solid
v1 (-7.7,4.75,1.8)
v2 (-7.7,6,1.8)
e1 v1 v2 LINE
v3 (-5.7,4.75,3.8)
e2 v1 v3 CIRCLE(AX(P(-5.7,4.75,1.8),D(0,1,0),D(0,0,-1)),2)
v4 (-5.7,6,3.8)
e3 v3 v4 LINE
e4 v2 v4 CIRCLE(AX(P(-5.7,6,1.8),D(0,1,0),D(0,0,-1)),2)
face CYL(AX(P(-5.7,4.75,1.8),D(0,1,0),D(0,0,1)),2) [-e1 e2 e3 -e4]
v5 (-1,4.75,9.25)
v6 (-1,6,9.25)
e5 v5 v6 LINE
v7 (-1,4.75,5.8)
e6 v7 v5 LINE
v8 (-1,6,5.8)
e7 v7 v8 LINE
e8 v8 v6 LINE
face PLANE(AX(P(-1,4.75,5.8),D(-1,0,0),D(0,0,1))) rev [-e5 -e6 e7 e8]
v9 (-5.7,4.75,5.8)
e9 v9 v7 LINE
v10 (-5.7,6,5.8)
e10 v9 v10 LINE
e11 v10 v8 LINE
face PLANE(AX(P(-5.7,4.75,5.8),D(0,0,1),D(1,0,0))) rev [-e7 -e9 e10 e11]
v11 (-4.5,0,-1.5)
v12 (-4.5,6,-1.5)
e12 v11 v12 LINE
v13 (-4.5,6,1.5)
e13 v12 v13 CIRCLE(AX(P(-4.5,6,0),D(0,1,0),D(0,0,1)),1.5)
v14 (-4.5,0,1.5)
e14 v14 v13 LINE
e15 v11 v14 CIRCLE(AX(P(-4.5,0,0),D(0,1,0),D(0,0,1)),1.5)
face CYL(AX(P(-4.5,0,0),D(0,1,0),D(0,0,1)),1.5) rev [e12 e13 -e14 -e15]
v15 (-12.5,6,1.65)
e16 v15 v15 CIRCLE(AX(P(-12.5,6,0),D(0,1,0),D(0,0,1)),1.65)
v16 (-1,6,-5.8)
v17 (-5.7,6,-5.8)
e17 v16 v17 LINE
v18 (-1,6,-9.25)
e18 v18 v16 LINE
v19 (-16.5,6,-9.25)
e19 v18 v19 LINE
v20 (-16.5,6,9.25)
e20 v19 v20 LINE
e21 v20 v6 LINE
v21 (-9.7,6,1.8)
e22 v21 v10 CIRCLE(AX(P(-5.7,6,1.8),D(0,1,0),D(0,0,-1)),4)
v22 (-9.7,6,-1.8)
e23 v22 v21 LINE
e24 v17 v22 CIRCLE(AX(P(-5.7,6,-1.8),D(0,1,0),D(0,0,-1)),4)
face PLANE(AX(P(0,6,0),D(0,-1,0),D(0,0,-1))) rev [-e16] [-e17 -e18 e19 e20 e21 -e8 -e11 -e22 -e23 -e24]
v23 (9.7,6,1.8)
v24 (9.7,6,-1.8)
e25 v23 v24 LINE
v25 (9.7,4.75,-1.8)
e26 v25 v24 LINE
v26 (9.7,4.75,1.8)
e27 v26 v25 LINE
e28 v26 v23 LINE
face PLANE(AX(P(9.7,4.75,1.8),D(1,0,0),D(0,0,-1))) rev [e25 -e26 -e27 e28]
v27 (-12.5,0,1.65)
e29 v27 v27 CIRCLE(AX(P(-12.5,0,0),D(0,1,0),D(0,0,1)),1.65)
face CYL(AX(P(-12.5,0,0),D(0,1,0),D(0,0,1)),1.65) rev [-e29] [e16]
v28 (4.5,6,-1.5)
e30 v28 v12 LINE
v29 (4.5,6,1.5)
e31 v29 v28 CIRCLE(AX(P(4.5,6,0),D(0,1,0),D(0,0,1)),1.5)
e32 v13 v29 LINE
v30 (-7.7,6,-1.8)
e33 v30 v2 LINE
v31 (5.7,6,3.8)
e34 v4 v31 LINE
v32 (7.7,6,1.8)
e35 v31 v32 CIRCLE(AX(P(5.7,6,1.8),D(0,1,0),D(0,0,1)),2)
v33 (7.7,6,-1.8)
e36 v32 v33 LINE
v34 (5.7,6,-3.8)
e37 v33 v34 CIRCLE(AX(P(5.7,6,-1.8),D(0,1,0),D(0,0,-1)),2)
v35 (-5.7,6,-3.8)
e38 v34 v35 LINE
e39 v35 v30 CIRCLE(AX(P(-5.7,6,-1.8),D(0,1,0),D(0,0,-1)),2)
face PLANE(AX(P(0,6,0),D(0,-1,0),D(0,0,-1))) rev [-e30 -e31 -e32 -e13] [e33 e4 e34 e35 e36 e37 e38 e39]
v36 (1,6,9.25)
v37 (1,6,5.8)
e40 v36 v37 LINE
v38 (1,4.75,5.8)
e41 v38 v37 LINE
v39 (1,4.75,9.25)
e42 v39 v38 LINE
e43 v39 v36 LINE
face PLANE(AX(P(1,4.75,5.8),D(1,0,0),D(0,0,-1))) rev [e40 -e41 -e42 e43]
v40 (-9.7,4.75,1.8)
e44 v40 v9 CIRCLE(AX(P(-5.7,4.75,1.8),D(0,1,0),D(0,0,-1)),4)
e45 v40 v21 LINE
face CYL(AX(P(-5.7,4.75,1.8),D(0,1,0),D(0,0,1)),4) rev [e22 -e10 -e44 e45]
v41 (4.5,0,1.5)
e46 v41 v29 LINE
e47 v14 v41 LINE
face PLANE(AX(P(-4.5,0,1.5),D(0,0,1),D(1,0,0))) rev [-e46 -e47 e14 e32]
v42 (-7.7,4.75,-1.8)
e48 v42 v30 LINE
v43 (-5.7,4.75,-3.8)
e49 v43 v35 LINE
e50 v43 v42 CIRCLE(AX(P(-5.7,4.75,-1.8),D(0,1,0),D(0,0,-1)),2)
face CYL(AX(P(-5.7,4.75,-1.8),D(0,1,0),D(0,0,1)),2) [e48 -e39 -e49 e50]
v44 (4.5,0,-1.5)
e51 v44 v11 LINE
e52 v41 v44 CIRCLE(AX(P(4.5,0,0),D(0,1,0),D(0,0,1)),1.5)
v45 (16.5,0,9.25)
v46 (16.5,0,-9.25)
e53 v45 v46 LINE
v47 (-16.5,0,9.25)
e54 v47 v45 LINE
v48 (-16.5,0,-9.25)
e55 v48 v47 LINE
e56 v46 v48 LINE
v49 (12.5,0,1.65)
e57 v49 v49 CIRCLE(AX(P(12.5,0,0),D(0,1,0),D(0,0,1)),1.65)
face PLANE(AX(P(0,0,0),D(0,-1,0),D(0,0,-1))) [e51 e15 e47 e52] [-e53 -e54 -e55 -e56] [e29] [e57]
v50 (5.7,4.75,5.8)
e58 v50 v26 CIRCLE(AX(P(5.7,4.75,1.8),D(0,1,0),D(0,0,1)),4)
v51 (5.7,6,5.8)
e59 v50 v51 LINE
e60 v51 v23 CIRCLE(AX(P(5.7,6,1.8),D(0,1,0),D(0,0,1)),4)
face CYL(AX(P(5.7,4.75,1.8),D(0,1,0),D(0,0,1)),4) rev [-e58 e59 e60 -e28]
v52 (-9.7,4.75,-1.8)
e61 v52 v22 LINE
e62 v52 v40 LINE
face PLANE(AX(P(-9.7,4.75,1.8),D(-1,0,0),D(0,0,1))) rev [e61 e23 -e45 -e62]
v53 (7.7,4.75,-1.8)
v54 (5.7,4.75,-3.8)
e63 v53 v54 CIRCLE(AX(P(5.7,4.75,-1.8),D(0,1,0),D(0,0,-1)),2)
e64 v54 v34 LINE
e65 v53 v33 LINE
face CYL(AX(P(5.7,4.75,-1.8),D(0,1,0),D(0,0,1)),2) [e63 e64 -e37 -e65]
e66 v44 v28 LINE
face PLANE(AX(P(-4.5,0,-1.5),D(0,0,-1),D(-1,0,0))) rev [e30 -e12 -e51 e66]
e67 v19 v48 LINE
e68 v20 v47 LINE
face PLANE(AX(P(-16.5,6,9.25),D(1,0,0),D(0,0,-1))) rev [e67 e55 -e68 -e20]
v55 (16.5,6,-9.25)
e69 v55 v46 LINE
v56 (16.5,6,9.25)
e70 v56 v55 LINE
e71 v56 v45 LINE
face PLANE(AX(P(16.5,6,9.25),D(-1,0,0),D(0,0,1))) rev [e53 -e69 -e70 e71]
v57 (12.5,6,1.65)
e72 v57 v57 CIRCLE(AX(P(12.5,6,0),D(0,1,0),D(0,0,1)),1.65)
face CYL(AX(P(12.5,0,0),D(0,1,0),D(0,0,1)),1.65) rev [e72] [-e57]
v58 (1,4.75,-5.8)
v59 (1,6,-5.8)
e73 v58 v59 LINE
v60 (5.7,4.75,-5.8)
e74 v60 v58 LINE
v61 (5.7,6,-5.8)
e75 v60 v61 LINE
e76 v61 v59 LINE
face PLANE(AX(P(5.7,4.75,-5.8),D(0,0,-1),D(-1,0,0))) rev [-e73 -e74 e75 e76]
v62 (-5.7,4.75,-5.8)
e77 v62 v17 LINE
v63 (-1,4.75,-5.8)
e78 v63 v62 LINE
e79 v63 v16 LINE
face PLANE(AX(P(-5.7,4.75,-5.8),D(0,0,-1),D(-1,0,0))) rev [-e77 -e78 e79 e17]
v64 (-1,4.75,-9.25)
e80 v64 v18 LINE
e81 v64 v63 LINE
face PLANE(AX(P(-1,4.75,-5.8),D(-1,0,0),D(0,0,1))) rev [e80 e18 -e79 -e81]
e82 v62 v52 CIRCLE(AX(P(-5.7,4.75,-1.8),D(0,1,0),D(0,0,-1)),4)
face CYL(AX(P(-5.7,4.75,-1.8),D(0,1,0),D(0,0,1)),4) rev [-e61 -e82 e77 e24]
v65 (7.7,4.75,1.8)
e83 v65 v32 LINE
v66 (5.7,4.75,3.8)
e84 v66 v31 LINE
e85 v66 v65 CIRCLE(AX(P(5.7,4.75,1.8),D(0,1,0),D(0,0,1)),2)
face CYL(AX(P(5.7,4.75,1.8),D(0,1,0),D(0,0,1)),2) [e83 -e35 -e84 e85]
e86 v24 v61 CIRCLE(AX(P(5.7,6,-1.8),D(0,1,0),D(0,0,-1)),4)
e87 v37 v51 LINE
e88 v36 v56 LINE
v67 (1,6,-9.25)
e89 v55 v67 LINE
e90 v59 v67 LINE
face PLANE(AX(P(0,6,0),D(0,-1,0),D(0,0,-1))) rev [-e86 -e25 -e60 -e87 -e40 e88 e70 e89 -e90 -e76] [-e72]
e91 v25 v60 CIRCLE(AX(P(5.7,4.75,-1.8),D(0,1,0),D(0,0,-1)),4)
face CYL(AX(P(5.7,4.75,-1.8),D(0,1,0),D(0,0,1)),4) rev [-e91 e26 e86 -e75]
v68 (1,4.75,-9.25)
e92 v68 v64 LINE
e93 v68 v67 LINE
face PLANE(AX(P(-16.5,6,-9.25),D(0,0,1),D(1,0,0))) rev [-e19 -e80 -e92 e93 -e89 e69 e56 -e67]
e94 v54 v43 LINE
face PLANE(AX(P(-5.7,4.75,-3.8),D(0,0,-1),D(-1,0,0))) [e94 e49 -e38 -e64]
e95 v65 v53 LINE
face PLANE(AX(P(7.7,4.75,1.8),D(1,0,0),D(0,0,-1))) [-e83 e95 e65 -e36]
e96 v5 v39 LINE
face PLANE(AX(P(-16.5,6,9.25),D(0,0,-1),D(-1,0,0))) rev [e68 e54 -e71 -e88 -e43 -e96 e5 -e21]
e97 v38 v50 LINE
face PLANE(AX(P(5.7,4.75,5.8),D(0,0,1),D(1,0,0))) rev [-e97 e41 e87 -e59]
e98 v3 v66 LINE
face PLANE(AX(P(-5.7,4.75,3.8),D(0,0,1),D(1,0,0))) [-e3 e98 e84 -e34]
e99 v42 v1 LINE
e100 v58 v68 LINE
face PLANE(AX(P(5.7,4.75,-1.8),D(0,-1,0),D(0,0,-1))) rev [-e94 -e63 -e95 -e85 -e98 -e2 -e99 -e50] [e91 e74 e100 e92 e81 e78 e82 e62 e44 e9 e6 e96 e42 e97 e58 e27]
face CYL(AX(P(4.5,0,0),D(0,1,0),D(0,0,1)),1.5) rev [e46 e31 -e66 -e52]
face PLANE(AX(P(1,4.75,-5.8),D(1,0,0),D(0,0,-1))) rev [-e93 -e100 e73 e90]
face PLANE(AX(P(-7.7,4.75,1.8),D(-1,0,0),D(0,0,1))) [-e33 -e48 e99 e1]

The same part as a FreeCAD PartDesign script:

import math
import FreeCAD as App
import Part
import Sketcher

V = App.Vector

doc = App.newDocument("Part")
body = doc.addObject("PartDesign::Body", "Body")

# Sketch on XZ plane
sketch1 = body.newObject("Sketcher::SketchObject", "Sketch")
sketch1.AttachmentSupport = (doc.getObject("XZ_Plane"), [""])
sketch1.MapMode = "FlatFace"
sketch1.addGeometry([
    Part.LineSegment(V(-16, -9, 0), V(-16, 9, 0)),
    Part.LineSegment(V(-16, 9, 0), V(16, 9, 0)),
    Part.LineSegment(V(16, 9, 0), V(16, -9, 0)),
    Part.LineSegment(V(16, -9, 0), V(-16, -9, 0)),
], False)
sketch1.addConstraint([
    Sketcher.Constraint("Coincident", 0, 2, 1, 1),
    Sketcher.Constraint("Coincident", 1, 2, 2, 1),
    Sketcher.Constraint("Coincident", 2, 2, 3, 1),
    Sketcher.Constraint("Coincident", 3, 2, 0, 1),
    Sketcher.Constraint("Vertical", 0),
    Sketcher.Constraint("Horizontal", 1),
    Sketcher.Constraint("Vertical", 2),
    Sketcher.Constraint("Horizontal", 3),
    Sketcher.Constraint("Symmetric", 0, 2, 2, 2, -1, 1),
    Sketcher.Constraint("DistanceX", 1, 1, 1, 2, 33.0),
    Sketcher.Constraint("DistanceY", 0, 1, 0, 2, 18.5),
])
pad1 = body.newObject("PartDesign::Pad", "Pad")
pad1.Profile = sketch1
pad1.Length = 6
pad1.Reversed = True

# Sketch on XZ plane
sketch2 = body.newObject("Sketcher::SketchObject", "Sketch001")
sketch2.AttachmentSupport = (doc.getObject("XZ_Plane"), [""])
sketch2.MapMode = "FlatFace"
sketch2.AttachmentOffset = App.Placement(V(0, 0, -6), App.Rotation())
sketch2.addGeometry([
    Part.LineSegment(V(1, -9.2, 0), V(-1, -9.2, 0)),  # 0
    Part.LineSegment(V(-1, -9.2, 0), V(-1, -5.8, 0)),  # 1
    Part.LineSegment(V(-1, -5.8, 0), V(-5.7, -5.8, 0)),  # 2
    Part.ArcOfCircle(Part.Circle(V(-5.7, -1.8, 0), V(0, 0, 1), 4), math.radians(180), math.radians(270)),  # 3
    Part.LineSegment(V(-9.7, -1.8, 0), V(-9.7, 1.8, 0)),  # 4
    Part.ArcOfCircle(Part.Circle(V(-5.7, 1.8, 0), V(0, 0, 1), 4), math.radians(90), math.radians(180)),  # 5
    Part.LineSegment(V(-5.7, 5.8, 0), V(-1, 5.8, 0)),  # 6
    Part.LineSegment(V(-1, 5.8, 0), V(-1, 9.2, 0)),  # 7
    Part.LineSegment(V(-1, 9.2, 0), V(1, 9.2, 0)),  # 8
    Part.LineSegment(V(1, 9.2, 0), V(1, 5.8, 0)),  # 9
    Part.LineSegment(V(1, 5.8, 0), V(5.7, 5.8, 0)),  # 10
    Part.ArcOfCircle(Part.Circle(V(5.7, 1.8, 0), V(0, 0, 1), 4), math.radians(0), math.radians(90)),  # 11
    Part.LineSegment(V(9.7, 1.8, 0), V(9.7, -1.8, 0)),  # 12
    Part.ArcOfCircle(Part.Circle(V(5.7, -1.8, 0), V(0, 0, 1), 4), math.radians(-90), math.radians(0)),  # 13
    Part.LineSegment(V(5.7, -5.8, 0), V(1, -5.8, 0)),  # 14
    Part.LineSegment(V(1, -5.8, 0), V(1, -9.2, 0)),  # 15
    Part.ArcOfCircle(Part.Circle(V(-5.7, 1.8, 0), V(0, 0, 1), 2), math.radians(90), math.radians(180)),  # 16
    Part.LineSegment(V(-7.7, 1.8, 0), V(-7.7, -1.8, 0)),  # 17
    Part.ArcOfCircle(Part.Circle(V(-5.7, -1.8, 0), V(0, 0, 1), 2), math.radians(-180), math.radians(-90)),  # 18
    Part.LineSegment(V(-5.7, -3.8, 0), V(5.7, -3.8, 0)),  # 19
    Part.ArcOfCircle(Part.Circle(V(5.7, -1.8, 0), V(0, 0, 1), 2), math.radians(-90), math.radians(0)),  # 20
    Part.LineSegment(V(7.7, -1.8, 0), V(7.7, 1.8, 0)),  # 21
    Part.ArcOfCircle(Part.Circle(V(5.7, 1.8, 0), V(0, 0, 1), 2), math.radians(0), math.radians(90)),  # 22
    Part.LineSegment(V(5.7, 3.8, 0), V(-5.7, 3.8, 0)),  # 23
], False)
sketch2.addConstraint([
    Sketcher.Constraint("Coincident", 0, 2, 1, 1),
    Sketcher.Constraint("Coincident", 1, 2, 2, 1),
    Sketcher.Constraint("Tangent", 2, 2, 3, 2),
    Sketcher.Constraint("Tangent", 3, 1, 4, 1),
    Sketcher.Constraint("Tangent", 4, 2, 5, 2),
    Sketcher.Constraint("Tangent", 5, 1, 6, 1),
    Sketcher.Constraint("Coincident", 6, 2, 7, 1),
    Sketcher.Constraint("Coincident", 7, 2, 8, 1),
    Sketcher.Constraint("Coincident", 8, 2, 9, 1),
    Sketcher.Constraint("Coincident", 9, 2, 10, 1),
    Sketcher.Constraint("Tangent", 10, 2, 11, 2),
    Sketcher.Constraint("Tangent", 11, 1, 12, 1),
    Sketcher.Constraint("Tangent", 12, 2, 13, 2),
    Sketcher.Constraint("Tangent", 13, 1, 14, 1),
    Sketcher.Constraint("Coincident", 14, 2, 15, 1),
    Sketcher.Constraint("Coincident", 15, 2, 0, 1),
    Sketcher.Constraint("Tangent", 16, 2, 17, 1),
    Sketcher.Constraint("Tangent", 17, 2, 18, 1),
    Sketcher.Constraint("Tangent", 18, 2, 19, 1),
    Sketcher.Constraint("Tangent", 19, 2, 20, 1),
    Sketcher.Constraint("Tangent", 20, 2, 21, 1),
    Sketcher.Constraint("Tangent", 21, 2, 22, 1),
    Sketcher.Constraint("Tangent", 22, 2, 23, 1),
    Sketcher.Constraint("Tangent", 23, 2, 16, 1),
    Sketcher.Constraint("Horizontal", 0),
    Sketcher.Constraint("Vertical", 1),
    Sketcher.Constraint("Horizontal", 2),
    Sketcher.Constraint("Vertical", 4),
    Sketcher.Constraint("Horizontal", 6),
    Sketcher.Constraint("Vertical", 7),
    Sketcher.Constraint("Horizontal", 8),
    Sketcher.Constraint("Vertical", 9),
    Sketcher.Constraint("Horizontal", 10),
    Sketcher.Constraint("Vertical", 12),
    Sketcher.Constraint("Horizontal", 14),
    Sketcher.Constraint("Vertical", 15),
    Sketcher.Constraint("Vertical", 17),
    Sketcher.Constraint("Horizontal", 19),
    Sketcher.Constraint("Vertical", 21),
    Sketcher.Constraint("Horizontal", 23),
    Sketcher.Constraint("Coincident", 16, 3, 5, 3),
    Sketcher.Constraint("Coincident", 18, 3, 3, 3),
    Sketcher.Constraint("Coincident", 20, 3, 13, 3),
    Sketcher.Constraint("Coincident", 22, 3, 11, 3),
    Sketcher.Constraint("Equal", 3, 5),
    Sketcher.Constraint("Equal", 5, 11),
    Sketcher.Constraint("Equal", 11, 13),
    Sketcher.Constraint("Equal", 18, 20),
    Sketcher.Constraint("Symmetric", 3, 3, 11, 3, -1, 1),
    Sketcher.Constraint("Symmetric", 0, 2, 8, 2, -1, 1),
    Sketcher.Constraint("Vertical", 1, 2, 6, 2),
    Sketcher.Constraint("Vertical", 9, 2, 14, 2),
    Sketcher.Constraint("Radius", 3, 4.0),
    Sketcher.Constraint("Radius", 16, 2.0),
    Sketcher.Constraint("DistanceX", 0, 2, 0, 1, 2.0),
    Sketcher.Constraint("DistanceX", 2, 2, 2, 1, 4.7),
    Sketcher.Constraint("DistanceY", 4, 1, 4, 2, 3.6),
    Sketcher.Constraint("DistanceY", 1, 1, 1, 2, 3.45),
])
pocket1 = body.newObject("PartDesign::Pocket", "Pocket")
pocket1.Profile = sketch2
pocket1.Length = 1.25
pocket1.Reversed = True

# Sketch on XZ plane
sketch3 = body.newObject("Sketcher::SketchObject", "Sketch002")
sketch3.AttachmentSupport = (doc.getObject("XZ_Plane"), [""])
sketch3.MapMode = "FlatFace"
sketch3.AttachmentOffset = App.Placement(V(0, 0, -6), App.Rotation())
sketch3.addGeometry([
    Part.Circle(V(-12.5, 0, 0), V(0, 0, 1), 1.6),
    Part.Circle(V(12.5, 0, 0), V(0, 0, 1), 1.6),
], False)
sketch3.addConstraint([
    Sketcher.Constraint("Equal", 0, 1),
    Sketcher.Constraint("Symmetric", 0, 3, 1, 3, -1, 1),
    Sketcher.Constraint("PointOnObject", 0, 3, -1),
    Sketcher.Constraint("Diameter", 0, 3.3),
    Sketcher.Constraint("DistanceX", 0, 3, 1, 3, 25.0),
])
pocket2 = body.newObject("PartDesign::Pocket", "Pocket001")
pocket2.Profile = sketch3
pocket2.Type = "ThroughAll"
pocket2.Reversed = True

# Sketch on XZ plane
sketch4 = body.newObject("Sketcher::SketchObject", "Sketch003")
sketch4.AttachmentSupport = (doc.getObject("XZ_Plane"), [""])
sketch4.MapMode = "FlatFace"
sketch4.AttachmentOffset = App.Placement(V(0, 0, -6), App.Rotation())
sketch4.addGeometry([
    Part.LineSegment(V(-4.5, 1.5, 0), V(4.5, 1.5, 0)),
    Part.ArcOfCircle(Part.Circle(V(4.5, 0, 0), V(0, 0, 1), 1.5), math.radians(-90), math.radians(90)),
    Part.LineSegment(V(4.5, -1.5, 0), V(-4.5, -1.5, 0)),
    Part.ArcOfCircle(Part.Circle(V(-4.5, 0, 0), V(0, 0, 1), 1.5), math.radians(90), math.radians(270)),
], False)
sketch4.addConstraint([
    Sketcher.Constraint("Tangent", 0, 2, 1, 2),
    Sketcher.Constraint("Tangent", 1, 1, 2, 1),
    Sketcher.Constraint("Tangent", 2, 2, 3, 2),
    Sketcher.Constraint("Tangent", 3, 1, 0, 1),
    Sketcher.Constraint("Horizontal", 0),
    Sketcher.Constraint("Horizontal", 2),
    Sketcher.Constraint("Symmetric", 1, 3, 3, 3, -1, 1),
    Sketcher.Constraint("Radius", 1, 1.5),
    Sketcher.Constraint("DistanceX", 0, 1, 0, 2, 9.0),
])
pocket3 = body.newObject("PartDesign::Pocket", "Pocket002")
pocket3.Profile = sketch4
pocket3.Type = "ThroughAll"
pocket3.Reversed = True

doc.recompute()
